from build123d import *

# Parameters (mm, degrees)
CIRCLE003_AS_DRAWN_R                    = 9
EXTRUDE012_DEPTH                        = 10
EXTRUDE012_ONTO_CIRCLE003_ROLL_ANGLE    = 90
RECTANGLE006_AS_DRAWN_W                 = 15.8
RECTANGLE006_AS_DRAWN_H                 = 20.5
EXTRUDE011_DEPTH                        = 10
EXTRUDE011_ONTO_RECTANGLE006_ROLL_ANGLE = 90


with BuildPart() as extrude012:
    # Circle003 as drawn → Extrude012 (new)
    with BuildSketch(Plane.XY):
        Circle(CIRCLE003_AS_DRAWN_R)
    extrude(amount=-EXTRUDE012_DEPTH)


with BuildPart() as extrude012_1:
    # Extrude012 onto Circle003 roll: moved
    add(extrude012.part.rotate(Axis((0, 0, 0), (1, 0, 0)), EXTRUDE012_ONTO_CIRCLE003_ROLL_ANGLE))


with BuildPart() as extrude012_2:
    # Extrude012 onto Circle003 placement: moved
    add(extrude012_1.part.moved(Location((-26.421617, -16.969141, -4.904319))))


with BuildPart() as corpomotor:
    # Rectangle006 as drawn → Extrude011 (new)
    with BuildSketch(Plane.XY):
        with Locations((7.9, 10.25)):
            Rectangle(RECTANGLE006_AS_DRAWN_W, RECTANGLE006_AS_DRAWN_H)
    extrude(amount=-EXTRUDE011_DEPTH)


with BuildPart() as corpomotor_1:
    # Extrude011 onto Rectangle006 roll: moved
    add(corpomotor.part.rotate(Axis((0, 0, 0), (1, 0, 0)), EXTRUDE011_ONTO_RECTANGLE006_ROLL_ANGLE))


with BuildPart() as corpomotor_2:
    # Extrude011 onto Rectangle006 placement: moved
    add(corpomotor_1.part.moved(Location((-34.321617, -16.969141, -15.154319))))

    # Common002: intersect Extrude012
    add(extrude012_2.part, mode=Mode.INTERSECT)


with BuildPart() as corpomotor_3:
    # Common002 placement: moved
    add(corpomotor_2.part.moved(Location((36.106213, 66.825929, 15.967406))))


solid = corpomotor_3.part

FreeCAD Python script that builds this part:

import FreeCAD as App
import Part
import Sketcher
from FreeCAD import Vector


def add_polygon(sketch, points):
    """Adds a closed chain of lines whose ends are joined by coincident constraints."""
    first, n = sketch.GeometryCount, len(points)
    for a, b in zip(points, points[1:] + points[:1]):
        sketch.addGeometry(Part.LineSegment(App.Vector(*a, 0), App.Vector(*b, 0)), False)
    for i in range(n):
        sketch.addConstraint(Sketcher.Constraint("Coincident", first + i, 2, first + (i + 1) % n, 1))

doc = App.newDocument("Part")
body = doc.addObject("PartDesign::Body", "Body")

# Sketch on XY plane
sketch1 = doc.addObject("Sketcher::SketchObject", "Sketch")
body.addObject(sketch1)
sketch1.AttachmentSupport = (doc.XY_Plane, [""])
sketch1.MapMode = "FlatFace"
sketch1.addGeometry(Part.Circle(Vector(0, 0, 0), Vector(0, 0, 1), 9), False)
sketch1.addConstraint(Sketcher.Constraint("Coincident", 0, 3, -1, 1))
sketch1.addConstraint(Sketcher.Constraint("Diameter", 0, 18.0))
pad1 = doc.addObject("PartDesign::Pad", "Pad")
body.addObject(pad1)
pad1.Profile = sketch1
pad1.Length = 10
pad1.Reversed = True
body2 = doc.addObject("PartDesign::Body", "Body001")
doc.recompute()

body.Placement = App.Placement(Vector(0, 0, 0), App.Rotation(Vector(1, 0, 0), 90))
boolean = doc.addObject("PartDesign::Boolean", "Boolean")
body2.addObject(boolean)
boolean.Type = "Fuse"
boolean.addObjects([body])
body3 = doc.addObject("PartDesign::Body", "Body002")
doc.recompute()

body2.Placement = App.Placement(Vector(-26.421617, -16.969141, -4.904319), App.Rotation(Vector(0, 0, 1), 0))
boolean2 = doc.addObject("PartDesign::Boolean", "Boolean001")
body3.addObject(boolean2)
boolean2.Type = "Fuse"
boolean2.addObjects([body2])
body4 = doc.addObject("PartDesign::Body", "Body003")

# Sketch on XY plane
sketch2 = doc.addObject("Sketcher::SketchObject", "Sketch001")
body4.addObject(sketch2)
sketch2.AttachmentSupport = (doc.getObject("XY_Plane003"), [""])
sketch2.MapMode = "FlatFace"
add_polygon(sketch2, [(0, 20.5), (0, 0), (15.8, 0), (15.8, 20.5)])  # lines 0-3
sketch2.addConstraint(Sketcher.Constraint("Vertical", 0))
sketch2.addConstraint(Sketcher.Constraint("Horizontal", 1))
sketch2.addConstraint(Sketcher.Constraint("Vertical", 2))
sketch2.addConstraint(Sketcher.Constraint("Horizontal", 3))
sketch2.addConstraint(Sketcher.Constraint("Coincident", 0, 2, -1, 1))
sketch2.addConstraint(Sketcher.Constraint("DistanceX", 1, 1, 1, 2, 15.8))
sketch2.addConstraint(Sketcher.Constraint("DistanceY", 0, 2, 0, 1, 20.5))
pad2 = doc.addObject("PartDesign::Pad", "Pad001")
body4.addObject(pad2)
pad2.Profile = sketch2
pad2.Length = 10
pad2.Reversed = True
body5 = doc.addObject("PartDesign::Body", "Body004")
doc.recompute()

body4.Placement = App.Placement(Vector(0, 0, 0), App.Rotation(Vector(1, 0, 0), 90))
boolean3 = doc.addObject("PartDesign::Boolean", "Boolean002")
body5.addObject(boolean3)
boolean3.Type = "Fuse"
boolean3.addObjects([body4])
body6 = doc.addObject("PartDesign::Body", "Body005")
doc.recompute()

body5.Placement = App.Placement(Vector(-34.321617, -16.969141, -15.154319), App.Rotation(Vector(0, 0, 1), 0))
boolean4 = doc.addObject("PartDesign::Boolean", "Boolean003")
body6.addObject(boolean4)
boolean4.Type = "Fuse"
boolean4.addObjects([body5])
doc.recompute()

boolean5 = doc.addObject("PartDesign::Boolean", "Boolean004")
body6.addObject(boolean5)
boolean5.Type = "Common"
boolean5.addObjects([body3])
body7 = doc.addObject("PartDesign::Body", "Body006")
doc.recompute()

body6.Placement = App.Placement(Vector(36.106213, 66.825929, 15.967406), App.Rotation(Vector(0, 0, 1), 0))
boolean6 = doc.addObject("PartDesign::Boolean", "Boolean005")
body7.addObject(boolean6)
boolean6.Type = "Fuse"
boolean6.addObjects([body6])

doc.recompute()
